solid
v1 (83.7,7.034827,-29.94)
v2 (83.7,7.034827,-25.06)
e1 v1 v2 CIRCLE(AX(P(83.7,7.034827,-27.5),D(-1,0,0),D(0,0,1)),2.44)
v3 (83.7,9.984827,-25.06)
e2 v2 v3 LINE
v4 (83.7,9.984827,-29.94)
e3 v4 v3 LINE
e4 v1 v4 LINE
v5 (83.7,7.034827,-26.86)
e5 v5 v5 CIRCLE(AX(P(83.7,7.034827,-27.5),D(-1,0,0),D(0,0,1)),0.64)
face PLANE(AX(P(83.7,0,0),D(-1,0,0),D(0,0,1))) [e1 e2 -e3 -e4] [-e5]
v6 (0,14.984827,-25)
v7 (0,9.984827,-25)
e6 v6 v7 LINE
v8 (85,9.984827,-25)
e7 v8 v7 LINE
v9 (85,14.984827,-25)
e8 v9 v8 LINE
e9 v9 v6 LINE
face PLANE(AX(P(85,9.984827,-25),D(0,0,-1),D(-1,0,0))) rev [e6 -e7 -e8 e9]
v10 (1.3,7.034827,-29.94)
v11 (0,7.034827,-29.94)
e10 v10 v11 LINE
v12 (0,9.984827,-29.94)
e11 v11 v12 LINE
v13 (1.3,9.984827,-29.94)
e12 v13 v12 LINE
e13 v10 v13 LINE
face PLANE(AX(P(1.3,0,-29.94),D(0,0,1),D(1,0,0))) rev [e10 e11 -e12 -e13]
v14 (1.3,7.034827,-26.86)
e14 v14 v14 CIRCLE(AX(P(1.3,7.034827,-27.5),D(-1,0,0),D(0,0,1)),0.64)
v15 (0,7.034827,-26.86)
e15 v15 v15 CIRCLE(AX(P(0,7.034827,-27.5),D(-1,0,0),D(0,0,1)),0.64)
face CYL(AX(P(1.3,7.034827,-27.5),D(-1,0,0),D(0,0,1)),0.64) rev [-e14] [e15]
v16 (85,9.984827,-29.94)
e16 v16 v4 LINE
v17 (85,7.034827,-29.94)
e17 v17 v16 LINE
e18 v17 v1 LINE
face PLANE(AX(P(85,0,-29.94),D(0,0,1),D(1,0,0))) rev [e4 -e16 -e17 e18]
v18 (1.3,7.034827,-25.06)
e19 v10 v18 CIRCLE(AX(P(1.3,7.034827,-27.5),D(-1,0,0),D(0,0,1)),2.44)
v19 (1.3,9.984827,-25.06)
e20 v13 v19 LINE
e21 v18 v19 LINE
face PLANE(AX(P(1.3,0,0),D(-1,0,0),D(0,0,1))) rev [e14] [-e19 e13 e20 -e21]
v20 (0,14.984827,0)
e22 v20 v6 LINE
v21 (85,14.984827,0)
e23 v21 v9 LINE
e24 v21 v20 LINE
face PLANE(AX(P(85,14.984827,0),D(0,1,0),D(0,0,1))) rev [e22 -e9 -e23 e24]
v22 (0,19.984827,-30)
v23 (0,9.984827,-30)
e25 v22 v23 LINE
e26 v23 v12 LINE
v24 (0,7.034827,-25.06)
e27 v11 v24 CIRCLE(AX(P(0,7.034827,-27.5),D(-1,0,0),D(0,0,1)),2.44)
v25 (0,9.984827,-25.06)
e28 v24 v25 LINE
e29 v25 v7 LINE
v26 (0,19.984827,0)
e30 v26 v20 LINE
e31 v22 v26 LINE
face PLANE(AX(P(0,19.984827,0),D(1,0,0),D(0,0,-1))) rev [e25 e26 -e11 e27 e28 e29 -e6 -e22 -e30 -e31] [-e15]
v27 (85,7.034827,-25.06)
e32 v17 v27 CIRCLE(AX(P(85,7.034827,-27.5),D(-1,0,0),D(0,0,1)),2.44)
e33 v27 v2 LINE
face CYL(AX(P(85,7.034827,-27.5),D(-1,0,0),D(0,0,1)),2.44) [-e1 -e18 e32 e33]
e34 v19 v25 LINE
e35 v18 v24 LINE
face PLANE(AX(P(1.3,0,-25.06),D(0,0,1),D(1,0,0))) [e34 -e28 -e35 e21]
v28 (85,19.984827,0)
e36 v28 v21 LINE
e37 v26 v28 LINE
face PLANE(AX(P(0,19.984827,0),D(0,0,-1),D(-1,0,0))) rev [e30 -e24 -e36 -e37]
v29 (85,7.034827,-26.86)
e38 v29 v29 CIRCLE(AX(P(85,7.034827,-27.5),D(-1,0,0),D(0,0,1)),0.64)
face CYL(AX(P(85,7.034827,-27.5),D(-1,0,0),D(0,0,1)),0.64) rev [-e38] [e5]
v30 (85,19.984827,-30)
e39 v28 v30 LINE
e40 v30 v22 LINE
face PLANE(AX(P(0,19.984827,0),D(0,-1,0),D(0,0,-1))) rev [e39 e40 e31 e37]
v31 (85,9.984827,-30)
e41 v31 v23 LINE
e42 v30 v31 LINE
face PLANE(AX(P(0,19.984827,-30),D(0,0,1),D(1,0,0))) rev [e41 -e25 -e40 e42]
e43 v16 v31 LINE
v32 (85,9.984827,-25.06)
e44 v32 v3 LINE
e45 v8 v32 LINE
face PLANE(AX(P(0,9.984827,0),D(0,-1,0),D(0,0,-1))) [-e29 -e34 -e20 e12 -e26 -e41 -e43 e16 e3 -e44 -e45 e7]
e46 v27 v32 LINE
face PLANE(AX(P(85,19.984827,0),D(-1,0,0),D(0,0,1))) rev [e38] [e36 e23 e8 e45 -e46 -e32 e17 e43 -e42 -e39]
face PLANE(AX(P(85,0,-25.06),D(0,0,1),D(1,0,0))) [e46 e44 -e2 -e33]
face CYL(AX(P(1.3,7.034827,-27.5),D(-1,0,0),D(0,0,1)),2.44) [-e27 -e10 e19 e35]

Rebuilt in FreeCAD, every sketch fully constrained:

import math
import FreeCAD as App
import Part
import Sketcher
from FreeCAD import Vector


def add_polygon(sketch, points):
    """Adds a closed chain of lines whose ends are joined by coincident constraints."""
    first, n = sketch.GeometryCount, len(points)
    for a, b in zip(points, points[1:] + points[:1]):
        sketch.addGeometry(Part.LineSegment(App.Vector(*a, 0), App.Vector(*b, 0)), False)
    for i in range(n):
        sketch.addConstraint(Sketcher.Constraint("Coincident", first + i, 2, first + (i + 1) % n, 1))

doc = App.newDocument("Part")
body = doc.addObject("PartDesign::Body", "Body")

sketch1 = body.newObject("Sketcher::SketchObject", "Sketch")
sketch1.AttachmentSupport = (doc.getObject("XZ_Plane"), [""])
sketch1.MapMode = "FlatFace"
add_polygon(sketch1, [(0, -30), (0, 0), (85, 0), (85, -30)])
sketch1.addConstraint(Sketcher.Constraint("Vertical", 0))
sketch1.addConstraint(Sketcher.Constraint("Horizontal", 1))
sketch1.addConstraint(Sketcher.Constraint("Vertical", 2))
sketch1.addConstraint(Sketcher.Constraint("Horizontal", 3))
sketch1.addConstraint(Sketcher.Constraint("Coincident", 0, 2, -1, 1))
sketch1.addConstraint(Sketcher.Constraint("DistanceX", 1, 1, 1, 2, 85.0))
sketch1.addConstraint(Sketcher.Constraint("DistanceY", 0, 1, 0, 2, 30.0))
pad1 = body.newObject("PartDesign::Pad", "Pad")
pad1.Profile = sketch1
pad1.Length = 10
pad1.Reversed = True

sketch2 = body.newObject("Sketcher::SketchObject", "Sketch001")
sketch2.AttachmentSupport = (doc.getObject("YZ_Plane"), [""])
sketch2.MapMode = "FlatFace"
add_polygon(sketch2, [(5, -25), (0, -25), (0, 0), (5, 0)])
sketch2.addConstraint(Sketcher.Constraint("Horizontal", 0))
sketch2.addConstraint(Sketcher.Constraint("Vertical", 1))
sketch2.addConstraint(Sketcher.Constraint("Horizontal", 2))
sketch2.addConstraint(Sketcher.Constraint("Vertical", 3))
sketch2.addConstraint(Sketcher.Constraint("Coincident", 1, 2, -1, 1))
sketch2.addConstraint(Sketcher.Constraint("DistanceX", 0, 2, 0, 1, 5.0))
sketch2.addConstraint(Sketcher.Constraint("DistanceY", 1, 1, 1, 2, 25.0))
pocket1 = body.newObject("PartDesign::Pocket", "Pocket")
pocket1.Profile = sketch2
pocket1.Type = "ThroughAll"
pocket1.Reversed = True
body2 = doc.addObject("PartDesign::Body", "Body001")
doc.recompute()

body.Placement = App.Placement(Vector(0, 9.984827, 0), App.Rotation(Vector(0, 0, 1), 0))
boolean = body2.newObject("PartDesign::Boolean", "Boolean")
boolean.Type = "Fuse"
boolean.addObjects([body])

sketch3 = body2.newObject("Sketcher::SketchObject", "Sketch002")
sketch3.AttachmentSupport = (doc.getObject("YZ_Plane001"), [""])
sketch3.MapMode = "FlatFace"
sketch3.addGeometry(Part.LineSegment(Vector(10, -25.1, 0), Vector(10, -29.9, 0)), False)
sketch3.addGeometry(Part.LineSegment(Vector(10, -29.9, 0), Vector(7, -29.9, 0)), False)
sketch3.addGeometry(Part.ArcOfCircle(Part.Circle(Vector(7, -27.5, 0), Vector(0, 0, 1), 2.4), math.radians(90), math.radians(270)), False)
sketch3.addGeometry(Part.LineSegment(Vector(7, -25.1, 0), Vector(10, -25.1, 0)), False)
sketch3.addGeometry(Part.Circle(Vector(7, -27.5, 0), Vector(0, 0, 1), 0.6), False)
sketch3.addConstraint(Sketcher.Constraint("Coincident", 0, 2, 1, 1))
sketch3.addConstraint(Sketcher.Constraint("Tangent", 1, 2, 2, 2))
sketch3.addConstraint(Sketcher.Constraint("Tangent", 2, 1, 3, 1))
sketch3.addConstraint(Sketcher.Constraint("Coincident", 3, 2, 0, 1))
sketch3.addConstraint(Sketcher.Constraint("Vertical", 0))
sketch3.addConstraint(Sketcher.Constraint("Horizontal", 1))
sketch3.addConstraint(Sketcher.Constraint("Horizontal", 3))
sketch3.addConstraint(Sketcher.Constraint("Coincident", 4, 3, 2, 3))
sketch3.addConstraint(Sketcher.Constraint("Diameter", 4, 1.28))
sketch3.addConstraint(Sketcher.Constraint("Radius", 2, 2.44))
sketch3.addConstraint(Sketcher.Constraint("DistanceX", 1, 2, 1, 1, 2.95))
sketch3.addConstraint(Sketcher.Constraint("DistanceY", 2, 3, -1, 1, 27.5))
sketch3.addConstraint(Sketcher.Constraint("DistanceX", -1, 1, 2, 3, 7.034827))
pad2 = body2.newObject("PartDesign::Pad", "Pad001")
pad2.Profile = sketch3
pad2.Length = 1.3
doc.recompute()

linearpattern = body2.newObject("PartDesign::LinearPattern", "LinearPattern")
linearpattern.Originals = [pad2]
linearpattern.Direction = (doc.getObject("X_Axis001"), [""])
linearpattern.Mode = "offset"
linearpattern.Offset = 83.7
linearpattern.Occurrences = 2
body2.Tip = linearpattern

doc.recompute()
